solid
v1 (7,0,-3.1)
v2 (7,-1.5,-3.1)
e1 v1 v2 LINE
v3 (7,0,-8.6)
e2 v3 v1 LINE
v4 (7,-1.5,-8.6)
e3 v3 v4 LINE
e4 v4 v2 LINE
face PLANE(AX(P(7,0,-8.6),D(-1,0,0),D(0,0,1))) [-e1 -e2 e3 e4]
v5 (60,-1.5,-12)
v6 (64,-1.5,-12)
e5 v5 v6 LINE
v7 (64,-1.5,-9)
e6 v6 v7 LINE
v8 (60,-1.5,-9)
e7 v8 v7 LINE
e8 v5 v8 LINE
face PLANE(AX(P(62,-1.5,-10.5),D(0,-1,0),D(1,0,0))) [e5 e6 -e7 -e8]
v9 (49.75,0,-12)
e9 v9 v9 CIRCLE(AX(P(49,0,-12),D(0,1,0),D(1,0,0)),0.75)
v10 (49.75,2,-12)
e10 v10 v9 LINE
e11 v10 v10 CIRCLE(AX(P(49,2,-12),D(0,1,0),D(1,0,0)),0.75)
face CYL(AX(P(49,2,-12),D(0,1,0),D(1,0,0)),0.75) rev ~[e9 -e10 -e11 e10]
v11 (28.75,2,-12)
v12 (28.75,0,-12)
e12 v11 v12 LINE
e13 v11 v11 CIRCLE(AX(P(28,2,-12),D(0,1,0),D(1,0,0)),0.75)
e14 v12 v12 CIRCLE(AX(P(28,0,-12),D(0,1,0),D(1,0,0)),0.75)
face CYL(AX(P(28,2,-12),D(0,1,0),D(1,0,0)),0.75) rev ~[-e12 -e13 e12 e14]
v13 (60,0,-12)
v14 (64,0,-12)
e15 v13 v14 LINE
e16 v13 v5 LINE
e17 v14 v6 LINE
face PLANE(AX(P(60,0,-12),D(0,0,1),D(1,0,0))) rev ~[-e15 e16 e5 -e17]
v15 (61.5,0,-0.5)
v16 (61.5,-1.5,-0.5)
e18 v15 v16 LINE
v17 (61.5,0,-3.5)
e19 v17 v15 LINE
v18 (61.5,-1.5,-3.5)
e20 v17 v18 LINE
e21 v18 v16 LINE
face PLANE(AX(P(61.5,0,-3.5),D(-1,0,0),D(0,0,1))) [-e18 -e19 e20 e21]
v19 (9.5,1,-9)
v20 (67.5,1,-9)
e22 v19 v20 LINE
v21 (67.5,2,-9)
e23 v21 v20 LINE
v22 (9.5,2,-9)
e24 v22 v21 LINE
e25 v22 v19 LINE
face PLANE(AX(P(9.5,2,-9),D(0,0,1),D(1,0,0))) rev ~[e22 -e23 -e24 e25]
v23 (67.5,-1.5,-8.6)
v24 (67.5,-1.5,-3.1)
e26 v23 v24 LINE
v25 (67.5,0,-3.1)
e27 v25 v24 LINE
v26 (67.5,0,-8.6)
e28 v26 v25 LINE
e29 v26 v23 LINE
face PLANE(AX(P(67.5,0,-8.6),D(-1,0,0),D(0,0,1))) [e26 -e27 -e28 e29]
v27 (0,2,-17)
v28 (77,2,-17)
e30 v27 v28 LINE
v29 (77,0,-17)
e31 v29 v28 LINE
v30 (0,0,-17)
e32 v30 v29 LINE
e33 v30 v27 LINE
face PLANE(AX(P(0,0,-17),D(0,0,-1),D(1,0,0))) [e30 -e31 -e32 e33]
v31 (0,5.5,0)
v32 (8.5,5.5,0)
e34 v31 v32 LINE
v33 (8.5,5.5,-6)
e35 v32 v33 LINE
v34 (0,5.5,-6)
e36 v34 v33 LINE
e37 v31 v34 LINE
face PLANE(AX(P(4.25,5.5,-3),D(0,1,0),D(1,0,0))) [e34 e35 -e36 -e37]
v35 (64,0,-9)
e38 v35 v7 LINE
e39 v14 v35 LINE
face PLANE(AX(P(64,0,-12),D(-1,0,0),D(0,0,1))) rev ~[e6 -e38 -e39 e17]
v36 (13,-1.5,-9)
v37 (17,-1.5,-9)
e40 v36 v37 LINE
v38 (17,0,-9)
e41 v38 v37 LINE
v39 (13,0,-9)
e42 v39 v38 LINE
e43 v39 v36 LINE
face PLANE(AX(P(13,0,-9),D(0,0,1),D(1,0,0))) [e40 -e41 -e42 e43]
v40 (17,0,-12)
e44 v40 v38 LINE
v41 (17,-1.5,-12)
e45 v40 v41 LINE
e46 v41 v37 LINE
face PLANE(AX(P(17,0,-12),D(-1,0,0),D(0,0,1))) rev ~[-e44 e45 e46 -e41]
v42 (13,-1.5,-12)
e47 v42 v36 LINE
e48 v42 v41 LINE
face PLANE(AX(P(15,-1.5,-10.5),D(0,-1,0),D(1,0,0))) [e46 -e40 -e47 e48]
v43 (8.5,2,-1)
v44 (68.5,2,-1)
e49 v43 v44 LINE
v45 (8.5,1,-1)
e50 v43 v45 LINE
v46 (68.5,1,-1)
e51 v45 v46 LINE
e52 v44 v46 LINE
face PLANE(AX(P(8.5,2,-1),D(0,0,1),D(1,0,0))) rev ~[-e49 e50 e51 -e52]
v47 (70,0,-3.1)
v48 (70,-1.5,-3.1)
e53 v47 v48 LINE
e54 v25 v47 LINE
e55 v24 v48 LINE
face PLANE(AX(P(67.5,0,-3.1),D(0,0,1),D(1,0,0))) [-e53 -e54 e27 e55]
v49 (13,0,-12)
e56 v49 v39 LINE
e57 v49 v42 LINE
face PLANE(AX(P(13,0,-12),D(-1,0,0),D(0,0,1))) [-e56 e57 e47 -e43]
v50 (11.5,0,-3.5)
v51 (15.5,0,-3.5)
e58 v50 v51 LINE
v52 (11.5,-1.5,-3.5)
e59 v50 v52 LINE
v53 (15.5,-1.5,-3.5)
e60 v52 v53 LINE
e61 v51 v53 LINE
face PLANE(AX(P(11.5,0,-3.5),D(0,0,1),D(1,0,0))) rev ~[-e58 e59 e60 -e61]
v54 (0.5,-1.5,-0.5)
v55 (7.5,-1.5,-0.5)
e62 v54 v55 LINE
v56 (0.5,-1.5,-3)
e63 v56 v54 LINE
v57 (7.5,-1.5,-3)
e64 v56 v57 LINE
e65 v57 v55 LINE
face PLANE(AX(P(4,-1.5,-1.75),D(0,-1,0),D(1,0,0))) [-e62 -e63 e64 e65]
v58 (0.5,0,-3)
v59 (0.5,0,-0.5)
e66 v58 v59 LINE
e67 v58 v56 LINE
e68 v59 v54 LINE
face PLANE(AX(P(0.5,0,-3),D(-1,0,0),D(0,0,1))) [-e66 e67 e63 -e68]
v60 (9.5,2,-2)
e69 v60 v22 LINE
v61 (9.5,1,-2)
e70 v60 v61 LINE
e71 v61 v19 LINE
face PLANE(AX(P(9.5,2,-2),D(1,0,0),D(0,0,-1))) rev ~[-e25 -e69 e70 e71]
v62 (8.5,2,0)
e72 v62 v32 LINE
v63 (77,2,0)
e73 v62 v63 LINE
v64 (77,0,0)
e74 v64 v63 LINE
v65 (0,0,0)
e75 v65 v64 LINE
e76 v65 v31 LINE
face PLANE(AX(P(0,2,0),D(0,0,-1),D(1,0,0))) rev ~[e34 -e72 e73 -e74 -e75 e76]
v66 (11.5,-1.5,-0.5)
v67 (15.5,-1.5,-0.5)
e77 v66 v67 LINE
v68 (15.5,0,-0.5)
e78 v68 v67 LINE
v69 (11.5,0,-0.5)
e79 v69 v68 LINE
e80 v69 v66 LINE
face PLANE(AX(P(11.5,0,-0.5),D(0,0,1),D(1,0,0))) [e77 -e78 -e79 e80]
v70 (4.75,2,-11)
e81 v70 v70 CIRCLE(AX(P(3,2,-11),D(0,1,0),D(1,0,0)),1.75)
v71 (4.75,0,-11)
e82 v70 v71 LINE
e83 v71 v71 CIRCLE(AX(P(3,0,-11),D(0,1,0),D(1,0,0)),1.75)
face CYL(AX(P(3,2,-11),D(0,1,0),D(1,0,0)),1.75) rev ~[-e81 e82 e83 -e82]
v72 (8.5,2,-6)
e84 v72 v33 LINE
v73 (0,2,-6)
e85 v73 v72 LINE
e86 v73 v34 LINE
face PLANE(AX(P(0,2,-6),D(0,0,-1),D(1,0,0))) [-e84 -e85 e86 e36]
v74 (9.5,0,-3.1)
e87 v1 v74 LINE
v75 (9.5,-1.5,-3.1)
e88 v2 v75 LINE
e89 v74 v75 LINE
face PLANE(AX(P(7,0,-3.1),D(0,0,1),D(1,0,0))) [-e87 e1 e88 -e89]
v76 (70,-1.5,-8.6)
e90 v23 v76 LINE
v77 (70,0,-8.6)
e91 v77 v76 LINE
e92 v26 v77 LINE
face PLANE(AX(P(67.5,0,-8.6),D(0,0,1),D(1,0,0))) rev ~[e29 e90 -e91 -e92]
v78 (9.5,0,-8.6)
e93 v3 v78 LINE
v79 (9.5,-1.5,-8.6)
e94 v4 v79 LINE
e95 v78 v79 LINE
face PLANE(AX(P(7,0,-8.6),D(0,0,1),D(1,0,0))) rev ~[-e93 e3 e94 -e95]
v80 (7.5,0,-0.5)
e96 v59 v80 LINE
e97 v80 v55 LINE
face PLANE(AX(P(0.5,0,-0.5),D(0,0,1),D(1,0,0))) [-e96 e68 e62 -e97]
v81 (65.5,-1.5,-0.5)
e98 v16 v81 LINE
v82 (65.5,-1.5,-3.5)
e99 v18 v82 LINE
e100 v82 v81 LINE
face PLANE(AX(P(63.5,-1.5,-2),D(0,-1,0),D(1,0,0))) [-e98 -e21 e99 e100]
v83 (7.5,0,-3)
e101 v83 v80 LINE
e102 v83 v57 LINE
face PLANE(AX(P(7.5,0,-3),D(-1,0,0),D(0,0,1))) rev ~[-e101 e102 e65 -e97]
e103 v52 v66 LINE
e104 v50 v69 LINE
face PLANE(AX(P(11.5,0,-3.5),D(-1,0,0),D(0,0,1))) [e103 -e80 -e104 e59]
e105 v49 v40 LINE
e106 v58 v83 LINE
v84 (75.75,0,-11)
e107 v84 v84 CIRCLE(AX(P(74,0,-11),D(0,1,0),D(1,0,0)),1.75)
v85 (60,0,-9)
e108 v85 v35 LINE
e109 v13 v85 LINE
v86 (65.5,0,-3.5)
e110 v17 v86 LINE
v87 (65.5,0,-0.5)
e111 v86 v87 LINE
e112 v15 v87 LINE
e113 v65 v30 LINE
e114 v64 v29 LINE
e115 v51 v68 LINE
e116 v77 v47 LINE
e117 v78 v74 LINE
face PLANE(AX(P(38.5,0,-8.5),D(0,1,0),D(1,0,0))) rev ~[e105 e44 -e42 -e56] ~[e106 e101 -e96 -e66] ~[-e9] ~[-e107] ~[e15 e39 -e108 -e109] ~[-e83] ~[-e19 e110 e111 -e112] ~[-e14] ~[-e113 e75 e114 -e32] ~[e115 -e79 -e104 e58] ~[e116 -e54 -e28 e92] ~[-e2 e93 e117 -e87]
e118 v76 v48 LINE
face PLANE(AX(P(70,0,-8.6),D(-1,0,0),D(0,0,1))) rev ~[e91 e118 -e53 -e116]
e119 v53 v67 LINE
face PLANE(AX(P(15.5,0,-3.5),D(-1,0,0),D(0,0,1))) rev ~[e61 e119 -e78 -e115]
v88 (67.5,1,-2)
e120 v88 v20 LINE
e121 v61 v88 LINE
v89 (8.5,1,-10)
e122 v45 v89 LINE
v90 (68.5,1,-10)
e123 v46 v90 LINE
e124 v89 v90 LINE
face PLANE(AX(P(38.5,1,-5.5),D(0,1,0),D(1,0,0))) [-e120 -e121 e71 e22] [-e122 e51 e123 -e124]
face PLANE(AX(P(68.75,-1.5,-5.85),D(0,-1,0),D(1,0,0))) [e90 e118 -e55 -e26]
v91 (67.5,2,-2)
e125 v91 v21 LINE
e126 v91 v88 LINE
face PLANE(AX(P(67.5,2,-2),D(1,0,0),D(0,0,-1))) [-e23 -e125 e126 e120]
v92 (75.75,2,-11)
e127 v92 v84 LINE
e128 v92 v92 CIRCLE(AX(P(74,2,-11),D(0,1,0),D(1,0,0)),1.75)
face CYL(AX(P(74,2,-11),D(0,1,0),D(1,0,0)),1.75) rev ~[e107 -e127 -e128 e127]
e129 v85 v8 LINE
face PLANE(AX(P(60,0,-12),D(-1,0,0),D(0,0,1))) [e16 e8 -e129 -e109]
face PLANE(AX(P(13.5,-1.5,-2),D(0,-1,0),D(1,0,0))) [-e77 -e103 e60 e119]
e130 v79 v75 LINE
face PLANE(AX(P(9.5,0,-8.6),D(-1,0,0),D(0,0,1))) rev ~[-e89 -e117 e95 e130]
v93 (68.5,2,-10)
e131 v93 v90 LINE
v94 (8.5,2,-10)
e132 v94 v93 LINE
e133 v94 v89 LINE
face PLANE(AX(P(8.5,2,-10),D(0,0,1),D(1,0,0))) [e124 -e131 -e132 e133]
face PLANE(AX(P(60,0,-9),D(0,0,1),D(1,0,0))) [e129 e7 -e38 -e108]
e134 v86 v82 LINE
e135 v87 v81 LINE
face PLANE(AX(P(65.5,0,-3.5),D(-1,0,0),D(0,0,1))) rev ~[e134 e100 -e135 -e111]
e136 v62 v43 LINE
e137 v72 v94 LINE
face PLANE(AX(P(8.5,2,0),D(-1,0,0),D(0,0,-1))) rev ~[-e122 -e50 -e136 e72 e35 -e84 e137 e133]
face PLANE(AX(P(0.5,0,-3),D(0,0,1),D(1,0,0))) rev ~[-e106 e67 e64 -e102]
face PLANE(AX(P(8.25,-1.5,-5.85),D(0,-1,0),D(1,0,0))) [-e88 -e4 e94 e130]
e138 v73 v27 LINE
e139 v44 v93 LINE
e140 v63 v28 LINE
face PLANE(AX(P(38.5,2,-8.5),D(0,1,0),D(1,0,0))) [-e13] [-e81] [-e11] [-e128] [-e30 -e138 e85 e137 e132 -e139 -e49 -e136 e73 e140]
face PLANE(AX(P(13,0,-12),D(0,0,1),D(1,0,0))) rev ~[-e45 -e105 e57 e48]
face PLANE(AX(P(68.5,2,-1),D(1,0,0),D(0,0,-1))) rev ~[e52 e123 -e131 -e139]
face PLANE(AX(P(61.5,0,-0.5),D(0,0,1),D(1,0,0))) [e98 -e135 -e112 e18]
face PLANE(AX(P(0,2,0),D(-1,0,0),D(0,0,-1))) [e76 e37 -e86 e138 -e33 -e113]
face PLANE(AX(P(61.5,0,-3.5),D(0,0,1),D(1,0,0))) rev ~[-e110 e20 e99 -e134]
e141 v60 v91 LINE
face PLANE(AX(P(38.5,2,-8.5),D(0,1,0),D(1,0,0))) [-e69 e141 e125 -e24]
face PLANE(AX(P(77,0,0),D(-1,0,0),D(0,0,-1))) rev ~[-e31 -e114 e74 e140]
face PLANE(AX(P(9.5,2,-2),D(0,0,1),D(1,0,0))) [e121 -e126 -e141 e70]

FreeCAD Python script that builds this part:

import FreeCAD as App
import Part
import Sketcher
from FreeCAD import Vector


def add_polygon(sketch, points):
    """Adds a closed chain of lines whose ends are joined by coincident constraints."""
    first, n = sketch.GeometryCount, len(points)
    for a, b in zip(points, points[1:] + points[:1]):
        sketch.addGeometry(Part.LineSegment(App.Vector(*a, 0), App.Vector(*b, 0)), False)
    for i in range(n):
        sketch.addConstraint(Sketcher.Constraint("Coincident", first + i, 2, first + (i + 1) % n, 1))

doc = App.newDocument("Part")
body = doc.addObject("PartDesign::Body", "Body")

sketch1 = body.newObject("Sketcher::SketchObject", "Sketch")
sketch1.AttachmentSupport = (doc.getObject("XZ_Plane"), [""])
sketch1.MapMode = "FlatFace"
add_polygon(sketch1, [(0, -17), (0, 0), (77, 0), (77, -17)])
sketch1.addConstraint([
    Sketcher.Constraint("Vertical", 0),
    Sketcher.Constraint("Horizontal", 1),
    Sketcher.Constraint("Vertical", 2),
    Sketcher.Constraint("Horizontal", 3),
    Sketcher.Constraint("Coincident", 0, 2, -1, 1),
    Sketcher.Constraint("DistanceX", 1, 1, 1, 2, 77.0),
    Sketcher.Constraint("DistanceY", 0, 1, 0, 2, 17.0),
])
pad1 = body.newObject("PartDesign::Pad", "Pad")
pad1.Profile = sketch1
pad1.Length = 2
pad1.Reversed = True

sketch2 = body.newObject("Sketcher::SketchObject", "Sketch001")
sketch2.AttachmentSupport = (doc.getObject("XZ_Plane"), [""])
sketch2.MapMode = "FlatFace"
sketch2.AttachmentOffset = App.Placement(Vector(0, 0, -2), App.Rotation())
add_polygon(sketch2, [(8, -10), (8, -1), (68, -1), (68, -10)])
add_polygon(sketch2, [(68, -2), (10, -2), (10, -9), (68, -9)])
sketch2.addConstraint([
    Sketcher.Constraint("Vertical", 0),
    Sketcher.Constraint("Horizontal", 1),
    Sketcher.Constraint("Vertical", 2),
    Sketcher.Constraint("Horizontal", 3),
    Sketcher.Constraint("Horizontal", 4),
    Sketcher.Constraint("Vertical", 5),
    Sketcher.Constraint("Horizontal", 6),
    Sketcher.Constraint("Vertical", 7),
    Sketcher.Constraint("DistanceX", 1, 1, 1, 2, 60.0),
    Sketcher.Constraint("DistanceX", 4, 2, 4, 1, 58.0),
    Sketcher.Constraint("DistanceY", 0, 1, 0, 2, 9.0),
    Sketcher.Constraint("DistanceY", 5, 2, 5, 1, 7.0),
    Sketcher.Constraint("DistanceY", 0, 2, -1, 1, 1.0),
    Sketcher.Constraint("DistanceY", 4, 2, -1, 1, 2.0),
    Sketcher.Constraint("DistanceX", 0, 2, 4, 2, 1.0),
    Sketcher.Constraint("DistanceX", -1, 1, 0, 2, 8.5),
])
pocket1 = body.newObject("PartDesign::Pocket", "Pocket")
pocket1.Profile = sketch2
pocket1.Length = 1
pocket1.Reversed = True

sketch3 = body.newObject("Sketcher::SketchObject", "Sketch002")
sketch3.AttachmentSupport = (doc.getObject("XZ_Plane"), [""])
sketch3.MapMode = "FlatFace"
sketch3.AttachmentOffset = App.Placement(Vector(0, 0, -2), App.Rotation())
add_polygon(sketch3, [(0, -6), (0, 0), (8, 0), (8, -6)])
sketch3.addConstraint([
    Sketcher.Constraint("Vertical", 0),
    Sketcher.Constraint("Horizontal", 1),
    Sketcher.Constraint("Vertical", 2),
    Sketcher.Constraint("Horizontal", 3),
    Sketcher.Constraint("Coincident", 0, 2, -1, 1),
    Sketcher.Constraint("DistanceY", 0, 1, 0, 2, 6.0),
    Sketcher.Constraint("DistanceX", 1, 1, 1, 2, 8.5),
])
pad2 = body.newObject("PartDesign::Pad", "Pad001")
pad2.Profile = sketch3
pad2.Length = 3.5
pad2.Reversed = True

sketch4 = body.newObject("Sketcher::SketchObject", "Sketch003")
sketch4.AttachmentSupport = (doc.getObject("XZ_Plane"), [""])
sketch4.MapMode = "FlatFace"
sketch4.AttachmentOffset = App.Placement(Vector(0, 0, -2), App.Rotation())
sketch4.addGeometry([
    Part.Circle(Vector(74, -11, 0), Vector(0, 0, 1), 1.8),
    Part.Circle(Vector(49, -12, 0), Vector(0, 0, 1), 0.8),
    Part.Circle(Vector(3, -11, 0), Vector(0, 0, 1), 1.8),
    Part.Circle(Vector(28, -12, 0), Vector(0, 0, 1), 0.8),
], False)
sketch4.addConstraint([
    Sketcher.Constraint("Equal", 0, 2),
    Sketcher.Constraint("Equal", 1, 3),
    Sketcher.Constraint("Horizontal", 0, 3, 2, 3),
    Sketcher.Constraint("Horizontal", 1, 3, 3, 3),
    Sketcher.Constraint("Diameter", 0, 3.5),
    Sketcher.Constraint("Diameter", 1, 1.5),
    Sketcher.Constraint("DistanceX", -1, 1, 0, 3, 74.0),
    Sketcher.Constraint("DistanceY", 0, 3, -1, 1, 11.0),
    Sketcher.Constraint("DistanceX", -1, 1, 1, 3, 49.0),
    Sketcher.Constraint("DistanceY", 1, 3, -1, 1, 12.0),
    Sketcher.Constraint("DistanceX", -1, 1, 2, 3, 3.0),
    Sketcher.Constraint("DistanceX", -1, 1, 3, 3, 28.0),
])
pocket2 = body.newObject("PartDesign::Pocket", "Pocket001")
pocket2.Profile = sketch4
pocket2.Type = "ThroughAll"
pocket2.Reversed = True

sketch5 = body.newObject("Sketcher::SketchObject", "Sketch004")
sketch5.AttachmentSupport = (doc.getObject("XZ_Plane"), [""])
sketch5.MapMode = "FlatFace"
add_polygon(sketch5, [(0.5, -0.5), (0.5, -3), (7.5, -3), (7.5, -0.5)])
add_polygon(sketch5, [(7, -3.1), (7, -8.6), (9.5, -8.6), (9.5, -3.1)])
add_polygon(sketch5, [(13, -9), (13, -12), (17, -12), (17, -9)])
add_polygon(sketch5, [(11.5, -0.5), (11.5, -3.5), (15.5, -3.5), (15.5, -0.5)])
add_polygon(sketch5, [(67.5, -3.1), (67.5, -8.6), (70, -8.6), (70, -3.1)])
add_polygon(sketch5, [(60, -9), (60, -12), (64, -12), (64, -9)])
add_polygon(sketch5, [(61.5, -0.5), (61.5, -3.5), (65.5, -3.5), (65.5, -0.5)])
sketch5.addConstraint([
    Sketcher.Constraint("Vertical", 0),
    Sketcher.Constraint("Horizontal", 1),
    Sketcher.Constraint("Vertical", 2),
    Sketcher.Constraint("Horizontal", 3),
    Sketcher.Constraint("Vertical", 4),
    Sketcher.Constraint("Horizontal", 5),
    Sketcher.Constraint("Vertical", 6),
    Sketcher.Constraint("Horizontal", 7),
    Sketcher.Constraint("Vertical", 8),
    Sketcher.Constraint("Horizontal", 9),
    Sketcher.Constraint("Vertical", 10),
    Sketcher.Constraint("Horizontal", 11),
    Sketcher.Constraint("Vertical", 12),
    Sketcher.Constraint("Horizontal", 13),
    Sketcher.Constraint("Vertical", 14),
    Sketcher.Constraint("Horizontal", 15),
    Sketcher.Constraint("Vertical", 16),
    Sketcher.Constraint("Horizontal", 17),
    Sketcher.Constraint("Vertical", 18),
    Sketcher.Constraint("Horizontal", 19),
    Sketcher.Constraint("Vertical", 20),
    Sketcher.Constraint("Horizontal", 21),
    Sketcher.Constraint("Vertical", 22),
    Sketcher.Constraint("Horizontal", 23),
    Sketcher.Constraint("Vertical", 24),
    Sketcher.Constraint("Horizontal", 25),
    Sketcher.Constraint("Vertical", 26),
    Sketcher.Constraint("Horizontal", 27),
    Sketcher.Constraint("Horizontal", 3, 2, 14, 2),
    Sketcher.Constraint("Horizontal", 5, 2, 16, 2),
    Sketcher.Constraint("Horizontal", 7, 2, 18, 2),
    Sketcher.Constraint("Horizontal", 9, 2, 20, 2),
    Sketcher.Constraint("Horizontal", 11, 2, 22, 2),
    Sketcher.Constraint("Horizontal", 13, 2, 24, 2),
    Sketcher.Constraint("Horizontal", 15, 2, 26, 2),
    Sketcher.Constraint("Equal", 11, 13),
    Sketcher.Constraint("Equal", 7, 17),
    Sketcher.Constraint("Equal", 15, 21),
    Sketcher.Constraint("Equal", 23, 25),
    Sketcher.Constraint("Equal", 19, 0),
    Sketcher.Constraint("Equal", 10, 12),
    Sketcher.Constraint("DistanceX", 1, 1, 1, 2, 7.0),
    Sketcher.Constraint("DistanceX", 9, 1, 9, 2, 4.0),
    Sketcher.Constraint("DistanceY", 8, 2, 8, 1, 3.0),
    Sketcher.Constraint("DistanceX", 5, 1, 5, 2, 2.5),
    Sketcher.Constraint("DistanceY", 4, 2, 4, 1, 5.5),
    Sketcher.Constraint("DistanceY", 0, 2, -1, 1, 3.0),
    Sketcher.Constraint("DistanceX", -1, 1, 4, 2, 7.0),
    Sketcher.Constraint("DistanceX", -1, 1, 8, 2, 13.0),
    Sketcher.Constraint("DistanceY", 8, 2, -1, 1, 12.0),
    Sketcher.Constraint("DistanceX", -1, 1, 17, 2, 70.0),
    Sketcher.Constraint("DistanceX", -1, 1, 20, 2, 60.0),
    Sketcher.Constraint("DistanceX", 1, 2, 5, 2, 2.0),
    Sketcher.Constraint("DistanceX", 6, 2, 12, 2, 2.0),
    Sketcher.Constraint("DistanceX", 24, 2, 19, 2, 6.0),
    Sketcher.Constraint("DistanceY", 4, 2, -1, 1, 8.6),
])
pad3 = body.newObject("PartDesign::Pad", "Pad002")
pad3.Profile = sketch5
pad3.Length = 1.5

doc.recompute()
